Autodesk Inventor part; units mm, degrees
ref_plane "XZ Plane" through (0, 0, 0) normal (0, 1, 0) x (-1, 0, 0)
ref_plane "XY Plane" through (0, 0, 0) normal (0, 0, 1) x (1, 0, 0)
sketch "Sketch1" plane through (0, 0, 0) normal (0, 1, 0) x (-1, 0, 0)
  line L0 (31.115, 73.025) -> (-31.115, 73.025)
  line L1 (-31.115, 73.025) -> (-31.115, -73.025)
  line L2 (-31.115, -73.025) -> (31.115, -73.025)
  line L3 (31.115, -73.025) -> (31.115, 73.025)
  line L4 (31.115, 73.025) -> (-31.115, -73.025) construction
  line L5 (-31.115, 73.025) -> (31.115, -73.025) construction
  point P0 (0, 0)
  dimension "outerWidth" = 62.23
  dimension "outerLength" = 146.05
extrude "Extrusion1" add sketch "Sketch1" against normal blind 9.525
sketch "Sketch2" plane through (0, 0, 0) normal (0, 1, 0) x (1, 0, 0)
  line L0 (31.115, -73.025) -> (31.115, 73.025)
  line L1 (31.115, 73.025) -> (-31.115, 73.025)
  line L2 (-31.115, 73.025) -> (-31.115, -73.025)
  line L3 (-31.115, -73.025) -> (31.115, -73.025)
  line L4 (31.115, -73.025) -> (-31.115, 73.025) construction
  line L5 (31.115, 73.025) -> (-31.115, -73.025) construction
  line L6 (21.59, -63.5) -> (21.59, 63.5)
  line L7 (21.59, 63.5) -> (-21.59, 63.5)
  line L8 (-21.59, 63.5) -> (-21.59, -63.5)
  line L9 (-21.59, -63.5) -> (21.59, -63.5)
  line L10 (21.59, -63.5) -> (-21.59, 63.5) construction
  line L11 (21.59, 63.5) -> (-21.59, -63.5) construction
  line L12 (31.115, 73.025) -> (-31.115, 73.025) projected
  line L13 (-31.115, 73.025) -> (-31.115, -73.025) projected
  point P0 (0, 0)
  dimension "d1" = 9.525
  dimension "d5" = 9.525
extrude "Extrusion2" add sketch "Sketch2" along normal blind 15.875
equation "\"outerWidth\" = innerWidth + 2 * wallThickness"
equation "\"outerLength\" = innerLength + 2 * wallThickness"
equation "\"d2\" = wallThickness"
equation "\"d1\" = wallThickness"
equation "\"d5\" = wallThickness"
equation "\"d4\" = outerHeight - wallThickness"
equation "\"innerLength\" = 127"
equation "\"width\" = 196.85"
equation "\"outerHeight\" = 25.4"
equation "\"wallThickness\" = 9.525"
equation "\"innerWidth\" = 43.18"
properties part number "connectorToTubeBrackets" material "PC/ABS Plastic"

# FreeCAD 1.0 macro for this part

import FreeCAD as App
import Part
import Sketcher
Q = App.Units.Quantity


def add_polygon(sketch, points):
    """Adds a closed chain of lines whose ends are joined by coincident constraints."""
    first, n = sketch.GeometryCount, len(points)
    for a, b in zip(points, points[1:] + points[:1]):
        sketch.addGeometry(Part.LineSegment(App.Vector(*a, 0), App.Vector(*b, 0)), False)
    for i in range(n):
        sketch.addConstraint(Sketcher.Constraint("Coincident", first + i, 2, first + (i + 1) % n, 1))

doc = App.newDocument("Part")
body = doc.addObject("PartDesign::Body", "Body")

# Sketch on XZ plane
sketch1 = doc.addObject("Sketcher::SketchObject", "Sketch")
body.addObject(sketch1)
sketch1.AttachmentSupport = (doc.XZ_Plane, [""])
sketch1.MapMode = "FlatFace"
add_polygon(sketch1, [(-31, -73), (-31, 73), (31, 73), (31, -73)])  # lines 0-3
sketch1.addConstraint([
    Sketcher.Constraint("Vertical", 0),
    Sketcher.Constraint("Horizontal", 1),
    Sketcher.Constraint("Vertical", 2),
    Sketcher.Constraint("Horizontal", 3),
    Sketcher.Constraint("Symmetric", 0, 2, 2, 2, -1, 1),
    Sketcher.Constraint("DistanceX", 1, 1, 1, 2, Q("2.45 in")),
    Sketcher.Constraint("DistanceY", 0, 1, 0, 2, Q("5.75 in")),
])
pad1 = doc.addObject("PartDesign::Pad", "Pad")
body.addObject(pad1)
pad1.Profile = sketch1
pad1.Length = Q("0.375 in")

# Sketch on XZ plane
sketch2 = doc.addObject("Sketcher::SketchObject", "Sketch001")
body.addObject(sketch2)
sketch2.AttachmentSupport = (doc.XZ_Plane, [""])
sketch2.MapMode = "FlatFace"
add_polygon(sketch2, [(-31, 73), (31, 73), (31, -73), (-31, -73)])  # lines 0-3
add_polygon(sketch2, [(22, -64), (22, 64), (-22, 64), (-22, -64)])  # lines 4-7
sketch2.addConstraint([
    Sketcher.Constraint("Horizontal", 0),
    Sketcher.Constraint("Vertical", 1),
    Sketcher.Constraint("Horizontal", 2),
    Sketcher.Constraint("Vertical", 3),
    Sketcher.Constraint("Vertical", 4),
    Sketcher.Constraint("Horizontal", 5),
    Sketcher.Constraint("Vertical", 6),
    Sketcher.Constraint("Horizontal", 7),
    Sketcher.Constraint("Symmetric", 0, 2, 2, 2, -1, 1),
    Sketcher.Constraint("Symmetric", 4, 2, 6, 2, -1, 1),
    Sketcher.Constraint("DistanceY", 4, 1, 4, 2, Q("5 in")),
    Sketcher.Constraint("DistanceX", 5, 2, 5, 1, Q("1.7 in")),
    Sketcher.Constraint("DistanceX", 4, 2, 0, 2, Q("0.375 in")),
    Sketcher.Constraint("DistanceY", 4, 2, 0, 2, Q("0.375 in")),
])
pad2 = doc.addObject("PartDesign::Pad", "Pad001")
body.addObject(pad2)
pad2.Profile = sketch2
pad2.Length = Q("0.625 in")
pad2.Reversed = True

doc.recompute()
